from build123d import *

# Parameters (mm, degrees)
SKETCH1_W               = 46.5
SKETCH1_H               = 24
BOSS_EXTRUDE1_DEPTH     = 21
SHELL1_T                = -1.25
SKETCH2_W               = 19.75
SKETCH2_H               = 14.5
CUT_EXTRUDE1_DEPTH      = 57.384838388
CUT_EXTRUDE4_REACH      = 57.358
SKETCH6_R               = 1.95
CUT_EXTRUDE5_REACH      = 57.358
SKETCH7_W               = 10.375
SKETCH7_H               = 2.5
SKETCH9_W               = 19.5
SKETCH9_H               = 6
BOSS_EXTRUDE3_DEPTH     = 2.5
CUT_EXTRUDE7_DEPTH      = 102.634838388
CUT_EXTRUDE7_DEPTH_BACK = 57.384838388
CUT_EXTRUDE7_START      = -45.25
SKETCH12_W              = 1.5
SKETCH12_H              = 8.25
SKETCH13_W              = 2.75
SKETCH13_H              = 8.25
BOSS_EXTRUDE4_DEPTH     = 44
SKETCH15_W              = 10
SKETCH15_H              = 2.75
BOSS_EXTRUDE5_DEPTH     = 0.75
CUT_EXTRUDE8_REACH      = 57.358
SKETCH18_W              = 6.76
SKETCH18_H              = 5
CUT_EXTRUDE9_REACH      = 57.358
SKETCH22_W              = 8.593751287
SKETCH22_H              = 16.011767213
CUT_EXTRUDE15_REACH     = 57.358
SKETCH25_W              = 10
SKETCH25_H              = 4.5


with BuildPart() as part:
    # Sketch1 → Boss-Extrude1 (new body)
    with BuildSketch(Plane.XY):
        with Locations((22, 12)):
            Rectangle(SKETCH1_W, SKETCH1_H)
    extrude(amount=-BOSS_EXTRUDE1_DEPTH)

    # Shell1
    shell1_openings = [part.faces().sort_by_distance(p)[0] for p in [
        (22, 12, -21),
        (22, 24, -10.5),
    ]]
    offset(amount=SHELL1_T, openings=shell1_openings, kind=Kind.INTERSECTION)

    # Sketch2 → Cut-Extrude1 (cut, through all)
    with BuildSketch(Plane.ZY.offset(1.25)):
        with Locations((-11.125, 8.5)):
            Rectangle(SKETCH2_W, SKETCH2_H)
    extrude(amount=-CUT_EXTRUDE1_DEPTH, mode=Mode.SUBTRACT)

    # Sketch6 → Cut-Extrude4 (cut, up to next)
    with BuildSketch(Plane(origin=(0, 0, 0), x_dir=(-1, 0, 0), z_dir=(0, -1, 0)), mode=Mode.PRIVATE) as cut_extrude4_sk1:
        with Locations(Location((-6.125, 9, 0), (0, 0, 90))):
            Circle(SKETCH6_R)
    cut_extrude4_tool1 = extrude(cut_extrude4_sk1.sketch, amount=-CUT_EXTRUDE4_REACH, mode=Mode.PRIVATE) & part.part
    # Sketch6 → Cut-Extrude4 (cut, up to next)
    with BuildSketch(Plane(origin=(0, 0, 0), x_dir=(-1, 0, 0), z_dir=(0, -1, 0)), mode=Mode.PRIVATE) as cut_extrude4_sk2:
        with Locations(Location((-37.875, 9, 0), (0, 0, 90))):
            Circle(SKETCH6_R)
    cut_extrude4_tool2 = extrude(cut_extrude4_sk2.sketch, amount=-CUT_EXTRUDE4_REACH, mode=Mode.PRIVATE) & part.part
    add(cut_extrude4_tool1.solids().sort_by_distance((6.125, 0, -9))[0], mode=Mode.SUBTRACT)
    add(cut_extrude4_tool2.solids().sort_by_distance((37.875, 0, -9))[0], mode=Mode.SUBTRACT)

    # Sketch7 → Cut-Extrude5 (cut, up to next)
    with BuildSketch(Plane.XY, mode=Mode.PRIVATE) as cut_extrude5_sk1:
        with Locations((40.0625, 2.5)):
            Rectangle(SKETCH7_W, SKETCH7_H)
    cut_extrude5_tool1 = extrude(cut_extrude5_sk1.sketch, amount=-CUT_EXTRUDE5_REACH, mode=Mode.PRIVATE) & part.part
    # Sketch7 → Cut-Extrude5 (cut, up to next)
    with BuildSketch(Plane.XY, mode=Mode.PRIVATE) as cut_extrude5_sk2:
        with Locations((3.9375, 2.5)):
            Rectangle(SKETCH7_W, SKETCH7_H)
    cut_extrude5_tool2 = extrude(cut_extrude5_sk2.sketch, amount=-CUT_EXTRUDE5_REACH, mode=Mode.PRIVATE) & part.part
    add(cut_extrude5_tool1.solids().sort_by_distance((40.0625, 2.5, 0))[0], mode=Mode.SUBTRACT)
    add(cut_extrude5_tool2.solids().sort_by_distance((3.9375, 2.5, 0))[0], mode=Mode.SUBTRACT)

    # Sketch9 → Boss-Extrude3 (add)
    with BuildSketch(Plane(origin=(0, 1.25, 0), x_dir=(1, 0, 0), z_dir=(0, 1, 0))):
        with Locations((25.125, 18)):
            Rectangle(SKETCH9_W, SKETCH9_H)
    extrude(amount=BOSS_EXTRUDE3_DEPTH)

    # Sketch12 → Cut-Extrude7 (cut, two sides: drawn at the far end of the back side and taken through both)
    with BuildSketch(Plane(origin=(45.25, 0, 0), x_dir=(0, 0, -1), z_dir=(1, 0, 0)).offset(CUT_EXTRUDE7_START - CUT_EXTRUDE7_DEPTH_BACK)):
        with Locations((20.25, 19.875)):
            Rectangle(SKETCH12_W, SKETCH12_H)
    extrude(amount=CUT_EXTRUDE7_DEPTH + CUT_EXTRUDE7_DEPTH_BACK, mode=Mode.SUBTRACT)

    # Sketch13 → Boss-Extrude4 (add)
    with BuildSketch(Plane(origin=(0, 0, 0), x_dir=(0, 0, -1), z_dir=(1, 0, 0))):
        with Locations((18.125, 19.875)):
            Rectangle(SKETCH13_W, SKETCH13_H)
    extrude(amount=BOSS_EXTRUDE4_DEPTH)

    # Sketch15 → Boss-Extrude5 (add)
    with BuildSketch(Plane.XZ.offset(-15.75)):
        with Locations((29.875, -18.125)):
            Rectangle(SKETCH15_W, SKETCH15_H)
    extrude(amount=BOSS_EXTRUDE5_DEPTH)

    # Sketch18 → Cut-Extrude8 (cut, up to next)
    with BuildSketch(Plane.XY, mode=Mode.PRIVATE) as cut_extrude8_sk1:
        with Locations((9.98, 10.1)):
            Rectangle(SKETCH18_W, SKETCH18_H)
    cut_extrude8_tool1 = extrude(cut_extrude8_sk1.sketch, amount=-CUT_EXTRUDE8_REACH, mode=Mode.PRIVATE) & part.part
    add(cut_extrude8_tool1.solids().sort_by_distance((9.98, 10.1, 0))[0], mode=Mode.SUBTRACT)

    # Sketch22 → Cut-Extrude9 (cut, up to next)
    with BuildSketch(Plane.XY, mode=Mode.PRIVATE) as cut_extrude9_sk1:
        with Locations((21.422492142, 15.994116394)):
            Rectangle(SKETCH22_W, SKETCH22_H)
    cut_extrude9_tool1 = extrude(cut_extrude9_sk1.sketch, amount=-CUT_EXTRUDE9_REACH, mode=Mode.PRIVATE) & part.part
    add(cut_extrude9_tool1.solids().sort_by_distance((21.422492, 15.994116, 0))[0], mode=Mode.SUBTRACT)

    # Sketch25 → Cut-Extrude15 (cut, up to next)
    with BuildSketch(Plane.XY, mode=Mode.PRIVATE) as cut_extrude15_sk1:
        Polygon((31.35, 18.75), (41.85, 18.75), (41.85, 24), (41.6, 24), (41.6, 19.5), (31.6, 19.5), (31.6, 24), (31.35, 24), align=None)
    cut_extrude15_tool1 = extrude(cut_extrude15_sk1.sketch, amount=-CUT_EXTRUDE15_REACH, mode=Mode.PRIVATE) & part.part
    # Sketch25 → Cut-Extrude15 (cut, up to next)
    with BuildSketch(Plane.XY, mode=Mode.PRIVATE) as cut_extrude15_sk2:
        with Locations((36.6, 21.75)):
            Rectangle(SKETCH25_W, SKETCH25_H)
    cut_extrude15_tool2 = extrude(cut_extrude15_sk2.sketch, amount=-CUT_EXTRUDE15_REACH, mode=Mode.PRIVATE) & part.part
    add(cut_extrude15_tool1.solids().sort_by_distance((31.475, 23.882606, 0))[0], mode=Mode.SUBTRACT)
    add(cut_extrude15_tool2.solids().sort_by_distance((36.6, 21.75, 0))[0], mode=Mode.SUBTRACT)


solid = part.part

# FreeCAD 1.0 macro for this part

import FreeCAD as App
import Part
import Sketcher
from FreeCAD import Vector


def faces_at(feature, points):
    """Names of the faces that lie closest to the given points."""
    faces = feature.Shape.Faces
    near = lambda p: min(range(len(faces)), key=lambda i: faces[i].distToShape(Part.Vertex(*p))[0])
    return sorted({f"Face{near(p) + 1}" for p in points})


def add_polygon(sketch, points):
    """Adds a closed chain of lines whose ends are joined by coincident constraints."""
    first, n = sketch.GeometryCount, len(points)
    for a, b in zip(points, points[1:] + points[:1]):
        sketch.addGeometry(Part.LineSegment(App.Vector(*a, 0), App.Vector(*b, 0)), False)
    for i in range(n):
        sketch.addConstraint(Sketcher.Constraint("Coincident", first + i, 2, first + (i + 1) % n, 1))

doc = App.newDocument("Part")
params = doc.addObject("Spreadsheet::Sheet", "Params")
for row, (alias, value) in enumerate([
    ("sketch1_height", "24 mm"),
    ("sketch1_width", "46.5 mm"),
    ("pad1_length", "21 mm"),
    ("thickness_wall", "1.25 mm"),
    ("sketch2_width", "14.5 mm"),
    ("sketch2_height", "19.75 mm"),
    ("sketch3_diameter", "3.9 mm"),
    ("sketch4_diameter", "3.9 mm"),
    ("sketch5_height", "2.5 mm"),
    ("sketch6_height", "2.5 mm"),
    ("sketch7_height", "6 mm"),
    ("sketch7_width", "19.5 mm"),
    ("pad2_length", "2.5 mm"),
    ("sketch8_height", "1.5 mm"),
    ("sketch8_width", "8.25 mm"),
    ("sketch9_width", "8.25 mm"),
    ("sketch9_height", "2.75 mm"),
    ("pad3_length", "44 mm"),
    ("sketch10_width", "10 mm"),
    ("sketch10_height", "2.75 mm"),
    ("pad4_length", "0.75 mm"),
    ("sketch11_height", "5 mm"),
    ("sketch11_width", "6.76 mm"),
    ("sketch13_width", "10 mm"),
    ("sketch13_width2", "10.5 mm"),
    ("sketch13_height", "4.5 mm"),
    ("sketch13_height2", "5.25 mm"),
    ("sketch14_width", "10 mm"),
    ("sketch14_height", "4.5 mm"),
], start=1):
    params.set(f"A{row}", alias)
    params.set(f"B{row}", "=" + value)
    params.setAlias(f"B{row}", alias)

body = doc.addObject("PartDesign::Body", "Body")
body.AllowCompound = True

sketch1 = body.newObject("Sketcher::SketchObject", "Sketch")
sketch1.AttachmentSupport = (doc.getObject("XY_Plane"), [""])
sketch1.MapMode = "FlatFace"
add_polygon(sketch1, [(-1.25, 24), (-1.25, 0), (45.25, 0), (45.25, 24)])
sketch1.addConstraint([
    Sketcher.Constraint("Vertical", 0),
    Sketcher.Constraint("Horizontal", 1),
    Sketcher.Constraint("Vertical", 2),
    Sketcher.Constraint("Horizontal", 3),
    Sketcher.Constraint("PointOnObject", 0, 2, -1),
    Sketcher.Constraint("DistanceY", 0, 2, 0, 1, 24.0),
    Sketcher.Constraint("DistanceX", 1, 1, 1, 2, 46.5),
    Sketcher.Constraint("DistanceX", 0, 2, -1, 1, 1.25),
])
sketch1.setExpression("Constraints[9]", "Params.sketch1_height")
sketch1.setExpression("Constraints[10]", "Params.sketch1_width")
pad1 = body.newObject("PartDesign::Pad", "Pad")
pad1.Profile = sketch1
pad1.setExpression("Length", "Params.pad1_length")
pad1.Reversed = True
doc.recompute()

thickness = body.newObject("PartDesign::Thickness", "Thickness")
thickness.Base = (pad1, faces_at(pad1, [(22, 12, -21), (22, 24, -10.5)]))
thickness.setExpression("Value", "Params.thickness_wall")
thickness.Reversed = True
thickness.Join = "Intersection"

sketch2 = body.newObject("Sketcher::SketchObject", "Sketch001")
sketch2.AttachmentSupport = (doc.getObject("YZ_Plane"), [""])
sketch2.MapMode = "FlatFace"
sketch2.AttachmentOffset = App.Placement(Vector(0, 0, -1.25), App.Rotation())
add_polygon(sketch2, [(15.75, -21), (1.25, -21), (1.25, -1.25), (15.75, -1.25)])
sketch2.addConstraint([
    Sketcher.Constraint("Horizontal", 0),
    Sketcher.Constraint("Vertical", 1),
    Sketcher.Constraint("Horizontal", 2),
    Sketcher.Constraint("Vertical", 3),
    Sketcher.Constraint("DistanceX", 0, 2, 0, 1, 14.5),
    Sketcher.Constraint("DistanceY", 0, 2, -1, 1, 21.0),
    Sketcher.Constraint("DistanceY", 1, 1, 1, 2, 19.75),
    Sketcher.Constraint("DistanceX", -1, 1, 0, 2, 1.25),
])
sketch2.setExpression("Constraints[8]", "Params.sketch2_width")
sketch2.setExpression("Constraints[10]", "Params.sketch2_height")
pocket1 = body.newObject("PartDesign::Pocket", "Pocket")
pocket1.Profile = sketch2
pocket1.Type = "ThroughAll"
pocket1.Reversed = True

sketch3 = body.newObject("Sketcher::SketchObject", "Sketch002")
sketch3.AttachmentSupport = (doc.getObject("XZ_Plane"), [""])
sketch3.MapMode = "FlatFace"
sketch3.addGeometry(Part.Circle(Vector(6.125, -9, 0), Vector(0, 0, 1), 1.95), False)
sketch3.addConstraint([
    Sketcher.Constraint("Diameter", 0, 3.9),
    Sketcher.Constraint("DistanceY", 0, 3, -1, 1, 9.0),
    Sketcher.Constraint("DistanceX", -1, 1, 0, 3, 6.125),
])
sketch3.setExpression("Constraints[0]", "Params.sketch3_diameter")
pocket2 = body.newObject("PartDesign::Pocket", "Pocket001")
pocket2.Profile = sketch3
pocket2.Type = "UpToFirst"

sketch4 = body.newObject("Sketcher::SketchObject", "Sketch003")
sketch4.AttachmentSupport = (doc.getObject("XZ_Plane"), [""])
sketch4.MapMode = "FlatFace"
sketch4.addGeometry(Part.Circle(Vector(37.875, -9, 0), Vector(0, 0, 1), 1.95), False)
sketch4.addConstraint([
    Sketcher.Constraint("Diameter", 0, 3.9),
    Sketcher.Constraint("DistanceY", 0, 3, -1, 1, 9.0),
    Sketcher.Constraint("DistanceX", -1, 1, 0, 3, 37.875),
])
sketch4.setExpression("Constraints[0]", "Params.sketch4_diameter")
pocket3 = body.newObject("PartDesign::Pocket", "Pocket002")
pocket3.Profile = sketch4
pocket3.Type = "UpToFirst"

sketch5 = body.newObject("Sketcher::SketchObject", "Sketch004")
sketch5.AttachmentSupport = (doc.getObject("XY_Plane"), [""])
sketch5.MapMode = "FlatFace"
add_polygon(sketch5, [(34.875, 3.75), (34.875, 1.25), (45.25, 1.25), (45.25, 3.75)])
sketch5.addConstraint([
    Sketcher.Constraint("Vertical", 0),
    Sketcher.Constraint("Horizontal", 1),
    Sketcher.Constraint("Vertical", 2),
    Sketcher.Constraint("Horizontal", 3),
    Sketcher.Constraint("DistanceY", 0, 2, 0, 1, 2.5),
    Sketcher.Constraint("DistanceX", 1, 1, 1, 2, 10.375),
    Sketcher.Constraint("DistanceY", -1, 1, 0, 2, 1.25),
    Sketcher.Constraint("DistanceX", -1, 1, 1, 2, 45.25),
])
sketch5.setExpression("Constraints[8]", "Params.sketch5_height")
pocket4 = body.newObject("PartDesign::Pocket", "Pocket003")
pocket4.Profile = sketch5
pocket4.Type = "UpToFirst"

sketch6 = body.newObject("Sketcher::SketchObject", "Sketch005")
sketch6.AttachmentSupport = (doc.getObject("XY_Plane"), [""])
sketch6.MapMode = "FlatFace"
add_polygon(sketch6, [(-1.25, 3.75), (-1.25, 1.25), (9.125, 1.25), (9.125, 3.75)])
sketch6.addConstraint([
    Sketcher.Constraint("Vertical", 0),
    Sketcher.Constraint("Horizontal", 1),
    Sketcher.Constraint("Vertical", 2),
    Sketcher.Constraint("Horizontal", 3),
    Sketcher.Constraint("DistanceY", 0, 2, 0, 1, 2.5),
    Sketcher.Constraint("DistanceX", 1, 1, 1, 2, 10.375),
    Sketcher.Constraint("DistanceX", 0, 2, -1, 1, 1.25),
    Sketcher.Constraint("DistanceY", -1, 1, 0, 2, 1.25),
])
sketch6.setExpression("Constraints[8]", "Params.sketch6_height")
pocket5 = body.newObject("PartDesign::Pocket", "Pocket004")
pocket5.Profile = sketch6
pocket5.Type = "UpToFirst"

sketch7 = body.newObject("Sketcher::SketchObject", "Sketch006")
sketch7.AttachmentSupport = (doc.getObject("XZ_Plane"), [""])
sketch7.MapMode = "FlatFace"
sketch7.AttachmentOffset = App.Placement(Vector(0, 0, -1.25), App.Rotation())
add_polygon(sketch7, [(15.375, -21), (15.375, -15), (34.875, -15), (34.875, -21)])
sketch7.addConstraint([
    Sketcher.Constraint("Vertical", 0),
    Sketcher.Constraint("Horizontal", 1),
    Sketcher.Constraint("Vertical", 2),
    Sketcher.Constraint("Horizontal", 3),
    Sketcher.Constraint("DistanceY", 0, 1, 0, 2, 6.0),
    Sketcher.Constraint("DistanceX", 1, 1, 1, 2, 19.5),
    Sketcher.Constraint("DistanceY", 0, 2, -1, 1, 15.0),
    Sketcher.Constraint("DistanceX", -1, 1, 0, 2, 15.375),
])
sketch7.setExpression("Constraints[8]", "Params.sketch7_height")
sketch7.setExpression("Constraints[9]", "Params.sketch7_width")
pad2 = body.newObject("PartDesign::Pad", "Pad001")
pad2.Profile = sketch7
pad2.setExpression("Length", "Params.pad2_length")
pad2.Reversed = True

sketch8 = body.newObject("Sketcher::SketchObject", "Sketch007")
sketch8.AttachmentSupport = (doc.getObject("YZ_Plane"), [""])
sketch8.MapMode = "FlatFace"
add_polygon(sketch8, [(24, -19.5), (15.75, -19.5), (15.75, -21), (24, -21)])
sketch8.addConstraint([
    Sketcher.Constraint("Horizontal", 0),
    Sketcher.Constraint("Vertical", 1),
    Sketcher.Constraint("Horizontal", 2),
    Sketcher.Constraint("Vertical", 3),
    Sketcher.Constraint("DistanceY", 1, 2, 1, 1, 1.5),
    Sketcher.Constraint("DistanceY", 1, 2, -1, 1, 21.0),
    Sketcher.Constraint("DistanceX", -1, 1, 2, 2, 24.0),
    Sketcher.Constraint("DistanceX", 0, 2, 0, 1, 8.25),
])
sketch8.setExpression("Constraints[8]", "Params.sketch8_height")
sketch8.setExpression("Constraints[11]", "Params.sketch8_width")
pocket6 = body.newObject("PartDesign::Pocket", "Pocket005")
pocket6.Profile = sketch8
pocket6.Type = "ThroughAll"
pocket6.Midplane = True

sketch9 = body.newObject("Sketcher::SketchObject", "Sketch008")
sketch9.AttachmentSupport = (doc.getObject("YZ_Plane"), [""])
sketch9.MapMode = "FlatFace"
add_polygon(sketch9, [(24, -16.75), (15.75, -16.75), (15.75, -19.5), (24, -19.5)])
sketch9.addConstraint([
    Sketcher.Constraint("Horizontal", 0),
    Sketcher.Constraint("Vertical", 1),
    Sketcher.Constraint("Horizontal", 2),
    Sketcher.Constraint("Vertical", 3),
    Sketcher.Constraint("DistanceX", -1, 1, 2, 2, 24.0),
    Sketcher.Constraint("DistanceX", 0, 2, 0, 1, 8.25),
    Sketcher.Constraint("DistanceY", 1, 2, 1, 1, 2.75),
    Sketcher.Constraint("DistanceY", 1, 2, -1, 1, 19.5),
])
sketch9.setExpression("Constraints[9]", "Params.sketch9_width")
sketch9.setExpression("Constraints[10]", "Params.sketch9_height")
pad3 = body.newObject("PartDesign::Pad", "Pad002")
pad3.Profile = sketch9
pad3.setExpression("Length", "Params.pad3_length")

sketch10 = body.newObject("Sketcher::SketchObject", "Sketch009")
sketch10.AttachmentSupport = (doc.getObject("XZ_Plane"), [""])
sketch10.MapMode = "FlatFace"
sketch10.AttachmentOffset = App.Placement(Vector(0, 0, -15.75), App.Rotation())
add_polygon(sketch10, [(24.875, -16.75), (24.875, -19.5), (34.875, -19.5), (34.875, -16.75)])
sketch10.addConstraint([
    Sketcher.Constraint("Vertical", 0),
    Sketcher.Constraint("Horizontal", 1),
    Sketcher.Constraint("Vertical", 2),
    Sketcher.Constraint("Horizontal", 3),
    Sketcher.Constraint("DistanceX", 1, 1, 1, 2, 10.0),
    Sketcher.Constraint("DistanceY", 0, 2, 0, 1, 2.75),
    Sketcher.Constraint("DistanceY", 0, 2, -1, 1, 19.5),
    Sketcher.Constraint("DistanceX", -1, 1, 0, 2, 24.875),
])
sketch10.setExpression("Constraints[8]", "Params.sketch10_width")
sketch10.setExpression("Constraints[9]", "Params.sketch10_height")
pad4 = body.newObject("PartDesign::Pad", "Pad003")
pad4.Profile = sketch10
pad4.setExpression("Length", "Params.pad4_length")

sketch11 = body.newObject("Sketcher::SketchObject", "Sketch010")
sketch11.AttachmentSupport = (doc.getObject("XY_Plane"), [""])
sketch11.MapMode = "FlatFace"
add_polygon(sketch11, [(6.6, 12.6), (6.6, 7.6), (13.36, 7.6), (13.36, 12.6)])
sketch11.addConstraint([
    Sketcher.Constraint("Vertical", 0),
    Sketcher.Constraint("Horizontal", 1),
    Sketcher.Constraint("Vertical", 2),
    Sketcher.Constraint("Horizontal", 3),
    Sketcher.Constraint("DistanceY", 0, 2, 0, 1, 5.0),
    Sketcher.Constraint("DistanceX", 1, 1, 1, 2, 6.76),
    Sketcher.Constraint("DistanceX", -1, 1, 0, 2, 6.6),
    Sketcher.Constraint("DistanceY", -1, 1, 0, 2, 7.6),
])
sketch11.setExpression("Constraints[8]", "Params.sketch11_height")
sketch11.setExpression("Constraints[9]", "Params.sketch11_width")
pocket7 = body.newObject("PartDesign::Pocket", "Pocket006")
pocket7.Profile = sketch11
pocket7.Type = "UpToFirst"

sketch12 = body.newObject("Sketcher::SketchObject", "Sketch011")
sketch12.AttachmentSupport = (doc.getObject("XY_Plane"), [""])
sketch12.MapMode = "FlatFace"
add_polygon(sketch12, [(17.125616, 24), (17.125616, 7.988233), (25.719368, 7.988233), (25.719368, 24)])
sketch12.addConstraint([
    Sketcher.Constraint("Vertical", 0),
    Sketcher.Constraint("Horizontal", 1),
    Sketcher.Constraint("Vertical", 2),
    Sketcher.Constraint("Horizontal", 3),
    Sketcher.Constraint("DistanceY", -1, 1, 2, 2, 24.0),
    Sketcher.Constraint("DistanceX", 1, 1, 1, 2, 8.593751),
    Sketcher.Constraint("DistanceY", 0, 2, 0, 1, 16.011767),
    Sketcher.Constraint("DistanceX", -1, 1, 0, 2, 17.125616),
])
pocket8 = body.newObject("PartDesign::Pocket", "Pocket007")
pocket8.Profile = sketch12
pocket8.Type = "UpToFirst"

sketch13 = body.newObject("Sketcher::SketchObject", "Sketch012")
sketch13.AttachmentSupport = (doc.getObject("XY_Plane"), [""])
sketch13.MapMode = "FlatFace"
add_polygon(sketch13, [(31.35, 18.75), (41.85, 18.75), (41.85, 24), (41.6, 24), (41.6, 19.5), (31.6, 19.5), (31.6, 24), (31.35, 24)])
sketch13.addConstraint([
    Sketcher.Constraint("Horizontal", 0),
    Sketcher.Constraint("Vertical", 1),
    Sketcher.Constraint("Horizontal", 2),
    Sketcher.Constraint("Vertical", 3),
    Sketcher.Constraint("Horizontal", 4),
    Sketcher.Constraint("Vertical", 5),
    Sketcher.Constraint("Horizontal", 6),
    Sketcher.Constraint("Vertical", 7),
    Sketcher.Constraint("Horizontal", 2, 2, 5, 2),
    Sketcher.Constraint("Equal", 2, 6),
    Sketcher.Constraint("DistanceX", 4, 2, 4, 1, 10.0),
    Sketcher.Constraint("DistanceX", 0, 1, 0, 2, 10.5),
    Sketcher.Constraint("DistanceY", 3, 2, 3, 1, 4.5),
    Sketcher.Constraint("DistanceY", -1, 1, 1, 2, 24.0),
    Sketcher.Constraint("DistanceY", 1, 1, 1, 2, 5.25),
    Sketcher.Constraint("DistanceX", -1, 1, 2, 2, 41.6),
])
sketch13.setExpression("Constraints[18]", "Params.sketch13_width")
sketch13.setExpression("Constraints[19]", "Params.sketch13_width2")
sketch13.setExpression("Constraints[20]", "Params.sketch13_height")
sketch13.setExpression("Constraints[22]", "Params.sketch13_height2")
pocket9 = body.newObject("PartDesign::Pocket", "Pocket008")
pocket9.Profile = sketch13
pocket9.Type = "UpToFirst"

sketch14 = body.newObject("Sketcher::SketchObject", "Sketch013")
sketch14.AttachmentSupport = (doc.getObject("XY_Plane"), [""])
sketch14.MapMode = "FlatFace"
add_polygon(sketch14, [(31.6, 24), (31.6, 19.5), (41.6, 19.5), (41.6, 24)])
sketch14.addConstraint([
    Sketcher.Constraint("Vertical", 0),
    Sketcher.Constraint("Horizontal", 1),
    Sketcher.Constraint("Vertical", 2),
    Sketcher.Constraint("Horizontal", 3),
    Sketcher.Constraint("DistanceX", 1, 1, 1, 2, 10.0),
    Sketcher.Constraint("DistanceY", 0, 2, 0, 1, 4.5),
    Sketcher.Constraint("DistanceY", -1, 1, 2, 2, 24.0),
    Sketcher.Constraint("DistanceX", -1, 1, 0, 2, 31.6),
])
sketch14.setExpression("Constraints[8]", "Params.sketch14_width")
sketch14.setExpression("Constraints[9]", "Params.sketch14_height")
pocket10 = body.newObject("PartDesign::Pocket", "Pocket009")
pocket10.Profile = sketch14
pocket10.Type = "UpToFirst"

doc.recompute()
